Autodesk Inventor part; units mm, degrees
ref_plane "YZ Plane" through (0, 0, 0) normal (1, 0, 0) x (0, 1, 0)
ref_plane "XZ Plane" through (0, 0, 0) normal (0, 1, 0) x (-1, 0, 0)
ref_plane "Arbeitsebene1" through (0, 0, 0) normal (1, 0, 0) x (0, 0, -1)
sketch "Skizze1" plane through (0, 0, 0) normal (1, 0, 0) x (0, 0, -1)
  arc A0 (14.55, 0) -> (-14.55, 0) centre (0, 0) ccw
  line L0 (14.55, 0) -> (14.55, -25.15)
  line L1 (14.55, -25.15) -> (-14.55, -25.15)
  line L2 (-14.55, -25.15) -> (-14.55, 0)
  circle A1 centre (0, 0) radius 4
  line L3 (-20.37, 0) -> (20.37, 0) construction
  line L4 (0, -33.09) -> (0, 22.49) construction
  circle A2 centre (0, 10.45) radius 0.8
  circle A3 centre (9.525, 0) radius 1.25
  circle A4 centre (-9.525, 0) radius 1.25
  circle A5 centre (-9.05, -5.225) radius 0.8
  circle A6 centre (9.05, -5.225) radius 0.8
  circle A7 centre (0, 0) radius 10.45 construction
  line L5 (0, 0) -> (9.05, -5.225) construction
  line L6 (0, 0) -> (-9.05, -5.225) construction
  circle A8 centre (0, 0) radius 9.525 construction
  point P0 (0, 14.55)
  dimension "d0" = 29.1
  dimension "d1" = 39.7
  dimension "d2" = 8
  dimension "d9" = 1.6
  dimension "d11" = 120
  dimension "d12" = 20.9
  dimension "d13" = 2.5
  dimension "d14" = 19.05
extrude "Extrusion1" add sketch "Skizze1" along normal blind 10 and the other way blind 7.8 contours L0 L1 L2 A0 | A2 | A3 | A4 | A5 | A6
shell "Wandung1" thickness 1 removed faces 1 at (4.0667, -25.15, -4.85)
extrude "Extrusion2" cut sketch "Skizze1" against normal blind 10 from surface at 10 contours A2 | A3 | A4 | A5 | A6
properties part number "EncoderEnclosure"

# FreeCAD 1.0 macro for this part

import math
import FreeCAD as App
import Part
import Sketcher


def faces_at(feature, points):
    """Names of the faces that lie closest to the given points."""
    faces = feature.Shape.Faces
    near = lambda p: min(range(len(faces)), key=lambda i: faces[i].distToShape(Part.Vertex(*p))[0])
    return sorted({f"Face{near(p) + 1}" for p in points})

doc = App.newDocument("Part")
params = doc.addObject("Spreadsheet::Sheet", "Params")
for row, (alias, value) in enumerate([
    ("sketch1_diameter", "8 mm"),
    ("sketch1_radius", "14.55 mm"),
    ("sketch1_width", "25.15 mm"),
    ("pad1_length", "10 mm"),
    ("pad1_length2", "7.8 mm"),
    ("thickness_wall", "1 mm"),
    ("sketch2_diameter", "1.6 mm"),
    ("sketch2_diameter2", "2.5 mm"),
    ("pocket1_length", "10 mm"),
], start=1):
    params.set(f"A{row}", alias)
    params.set(f"B{row}", "=" + value)
    params.setAlias(f"B{row}", alias)

body = doc.addObject("PartDesign::Body", "Body")

# Sketch on YZ plane
sketch1 = body.newObject("Sketcher::SketchObject", "Sketch")
sketch1.AttachmentSupport = (doc.getObject("YZ_Plane"), [""])
sketch1.MapMode = "FlatFace"
sketch1.addGeometry([
    Part.LineSegment(App.Vector(-25.1, -14.6, 0), App.Vector(0, -14.6, 0)),  # 0
    Part.ArcOfCircle(Part.Circle(App.Vector(0, 0, 0), App.Vector(0, 0, 1), 14.6), math.radians(-90), math.radians(90)),  # 1
    Part.LineSegment(App.Vector(0, 14.6, 0), App.Vector(-25.1, 14.6, 0)),  # 2
    Part.LineSegment(App.Vector(-25.1, 14.6, 0), App.Vector(-25.1, -14.6, 0)),  # 3
    Part.Circle(App.Vector(0, 0, 0), App.Vector(0, 0, 1), 4),  # 4
], False)
sketch1.addConstraint([
    Sketcher.Constraint("Tangent", 0, 2, 1, 1),
    Sketcher.Constraint("Tangent", 1, 2, 2, 1),
    Sketcher.Constraint("Coincident", 2, 2, 3, 1),
    Sketcher.Constraint("Coincident", 3, 2, 0, 1),
    Sketcher.Constraint("Horizontal", 0),
    Sketcher.Constraint("Horizontal", 2),
    Sketcher.Constraint("Vertical", 3),
    Sketcher.Constraint("Coincident", 1, 3, -1, 1),
    Sketcher.Constraint("Coincident", 4, 3, -1, 1),
    Sketcher.Constraint("Diameter", 4, 8.0),
    Sketcher.Constraint("Radius", 1, 14.55),
    Sketcher.Constraint("DistanceX", 0, 1, 0, 2, 25.15),
])
sketch1.setExpression("Constraints[9]", "Params.sketch1_diameter")
sketch1.setExpression("Constraints[10]", "Params.sketch1_radius")
sketch1.setExpression("Constraints[11]", "Params.sketch1_width")
pad1 = body.newObject("PartDesign::Pad", "Pad")
pad1.Profile = sketch1
pad1.Type = "TwoLengths"
pad1.setExpression("Length", "Params.pad1_length")
pad1.setExpression("Length2", "Params.pad1_length2")
doc.recompute()

thickness = body.newObject("PartDesign::Thickness", "Thickness")
thickness.Base = (pad1, faces_at(pad1, [(4.067, -25.15, -4.85)]))
thickness.setExpression("Value", "Params.thickness_wall")
thickness.Reversed = True
thickness.Join = "Intersection"

# Sketch on YZ plane
sketch2 = body.newObject("Sketcher::SketchObject", "Sketch001")
sketch2.AttachmentSupport = (doc.getObject("YZ_Plane"), [""])
sketch2.MapMode = "FlatFace"
sketch2.AttachmentOffset = App.Placement(App.Vector(0, 0, 10), App.Rotation())
sketch2.addGeometry([
    Part.Circle(App.Vector(10.4, 0, 0), App.Vector(0, 0, 1), 0.8),  # 0
    Part.Circle(App.Vector(0, -9.5, 0), App.Vector(0, 0, 1), 1.2),  # 1
    Part.Circle(App.Vector(0, 9.5, 0), App.Vector(0, 0, 1), 1.2),  # 2
    Part.Circle(App.Vector(-5.2, 9.1, 0), App.Vector(0, 0, 1), 0.8),  # 3
    Part.Circle(App.Vector(-5.2, -9.1, 0), App.Vector(0, 0, 1), 0.8),  # 4
], False)
sketch2.addConstraint([
    Sketcher.Constraint("Equal", 1, 2),
    Sketcher.Constraint("Equal", 0, 3),
    Sketcher.Constraint("Equal", 3, 4),
    Sketcher.Constraint("Symmetric", 1, 3, 2, 3, -1, 1),
    Sketcher.Constraint("Symmetric", 3, 3, 4, 3, -1),
    Sketcher.Constraint("PointOnObject", 0, 3, -1),
    Sketcher.Constraint("PointOnObject", 1, 3, -2),
    Sketcher.Constraint("Diameter", 0, 1.6),
    Sketcher.Constraint("Diameter", 1, 2.5),
    Sketcher.Constraint("DistanceY", 1, 3, 2, 3, 19.05),
    Sketcher.Constraint("DistanceY", 4, 3, 3, 3, 18.1),
    Sketcher.Constraint("DistanceX", -1, 1, 0, 3, 10.45),
    Sketcher.Constraint("DistanceX", 3, 3, -1, 1, 5.225),
])
sketch2.setExpression("Constraints[7]", "Params.sketch2_diameter")
sketch2.setExpression("Constraints[8]", "Params.sketch2_diameter2")
pocket1 = body.newObject("PartDesign::Pocket", "Pocket")
pocket1.Profile = sketch2
pocket1.setExpression("Length", "Params.pocket1_length")

doc.recompute()
